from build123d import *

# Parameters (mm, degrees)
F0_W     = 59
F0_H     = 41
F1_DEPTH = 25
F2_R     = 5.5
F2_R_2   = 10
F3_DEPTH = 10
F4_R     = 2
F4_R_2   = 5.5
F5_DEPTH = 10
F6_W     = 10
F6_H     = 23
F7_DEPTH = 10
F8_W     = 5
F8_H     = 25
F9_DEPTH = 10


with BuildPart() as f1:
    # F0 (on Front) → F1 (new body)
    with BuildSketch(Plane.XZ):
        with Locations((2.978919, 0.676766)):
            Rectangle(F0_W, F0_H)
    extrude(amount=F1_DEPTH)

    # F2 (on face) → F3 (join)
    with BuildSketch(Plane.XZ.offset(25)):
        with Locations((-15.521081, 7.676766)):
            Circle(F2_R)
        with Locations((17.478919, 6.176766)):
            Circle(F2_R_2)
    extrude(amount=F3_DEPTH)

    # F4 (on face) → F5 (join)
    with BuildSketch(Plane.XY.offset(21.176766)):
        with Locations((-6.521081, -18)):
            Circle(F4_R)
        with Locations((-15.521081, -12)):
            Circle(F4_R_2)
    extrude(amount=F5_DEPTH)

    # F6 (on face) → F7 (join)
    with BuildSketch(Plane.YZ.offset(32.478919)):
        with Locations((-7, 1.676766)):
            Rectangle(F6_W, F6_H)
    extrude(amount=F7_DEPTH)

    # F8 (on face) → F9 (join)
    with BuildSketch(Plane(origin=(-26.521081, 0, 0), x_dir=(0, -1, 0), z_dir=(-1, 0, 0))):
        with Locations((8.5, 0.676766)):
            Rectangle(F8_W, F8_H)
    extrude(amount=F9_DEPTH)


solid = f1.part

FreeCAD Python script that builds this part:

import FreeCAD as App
import Part
import Sketcher

V = App.Vector
Q = App.Units.Quantity

doc = App.newDocument("Part")
body = doc.addObject("PartDesign::Body", "Body")

# Sketch on XZ plane
sketch1 = body.newObject("Sketcher::SketchObject", "Sketch")
sketch1.AttachmentSupport = (doc.getObject("XZ_Plane"), [""])
sketch1.MapMode = "FlatFace"
sketch1.addGeometry(Part.LineSegment(V(-27, 21, 0), V(-27, -20, 0)), False)
sketch1.addGeometry(Part.LineSegment(V(-27, -20, 0), V(32, -20, 0)), False)
sketch1.addGeometry(Part.LineSegment(V(32, -20, 0), V(32, 21, 0)), False)
sketch1.addGeometry(Part.LineSegment(V(32, 21, 0), V(-27, 21, 0)), False)
sketch1.addConstraint(Sketcher.Constraint("Coincident", 0, 2, 1, 1))
sketch1.addConstraint(Sketcher.Constraint("Coincident", 1, 2, 2, 1))
sketch1.addConstraint(Sketcher.Constraint("Coincident", 2, 2, 3, 1))
sketch1.addConstraint(Sketcher.Constraint("Coincident", 3, 2, 0, 1))
sketch1.addConstraint(Sketcher.Constraint("Vertical", 0))
sketch1.addConstraint(Sketcher.Constraint("Horizontal", 1))
sketch1.addConstraint(Sketcher.Constraint("Vertical", 2))
sketch1.addConstraint(Sketcher.Constraint("Horizontal", 3))
sketch1.addConstraint(Sketcher.Constraint("DistanceX", 1, 1, 1, 2, Q("59 mm")))
sketch1.addConstraint(Sketcher.Constraint("DistanceY", 0, 2, 0, 1, Q("41 mm")))
sketch1.addConstraint(Sketcher.Constraint("DistanceX", 0, 2, -1, 1, Q("26.521081 mm")))
sketch1.addConstraint(Sketcher.Constraint("DistanceY", 0, 2, -1, 1, Q("19.823234 mm")))
pad1 = body.newObject("PartDesign::Pad", "Pad")
pad1.Profile = sketch1
pad1.Length = 25

# Sketch on XZ plane
sketch2 = body.newObject("Sketcher::SketchObject", "Sketch001")
sketch2.AttachmentSupport = (doc.getObject("XZ_Plane"), [""])
sketch2.MapMode = "FlatFace"
sketch2.AttachmentOffset = App.Placement(V(0, 0, 25), App.Rotation())
sketch2.addGeometry(Part.Circle(V(-16, 8, 0), V(0, 0, 1), 6), False)
sketch2.addGeometry(Part.Circle(V(17, 6, 0), V(0, 0, 1), 10), False)
sketch2.addConstraint(Sketcher.Constraint("Diameter", 0, Q("11 mm")))
sketch2.addConstraint(Sketcher.Constraint("Diameter", 1, Q("20 mm")))
sketch2.addConstraint(Sketcher.Constraint("DistanceX", 0, 3, 1, 3, Q("33 mm")))
sketch2.addConstraint(Sketcher.Constraint("DistanceY", 1, 3, 0, 3, Q("1.5 mm")))
sketch2.addConstraint(Sketcher.Constraint("DistanceX", 0, 3, -1, 1, Q("15.521081 mm")))
sketch2.addConstraint(Sketcher.Constraint("DistanceY", -1, 1, 0, 3, Q("7.676766 mm")))
pad2 = body.newObject("PartDesign::Pad", "Pad001")
pad2.Profile = sketch2
pad2.Length = 10

# Sketch on XY plane
sketch3 = body.newObject("Sketcher::SketchObject", "Sketch002")
sketch3.AttachmentSupport = (doc.getObject("XY_Plane"), [""])
sketch3.MapMode = "FlatFace"
sketch3.AttachmentOffset = App.Placement(V(0, 0, 21.176766), App.Rotation())
sketch3.addGeometry(Part.Circle(V(-6.5, -18, 0), V(0, 0, 1), 2), False)
sketch3.addGeometry(Part.Circle(V(-15.5, -12, 0), V(0, 0, 1), 5.5), False)
sketch3.addConstraint(Sketcher.Constraint("Diameter", 0, Q("4 mm")))
sketch3.addConstraint(Sketcher.Constraint("Diameter", 1, Q("11 mm")))
sketch3.addConstraint(Sketcher.Constraint("DistanceY", 0, 3, -1, 1, Q("18 mm")))
sketch3.addConstraint(Sketcher.Constraint("DistanceY", 1, 3, -1, 1, Q("12 mm")))
sketch3.addConstraint(Sketcher.Constraint("DistanceX", 1, 3, 0, 3, Q("9 mm")))
sketch3.addConstraint(Sketcher.Constraint("DistanceX", 0, 3, -1, 1, Q("6.521081 mm")))
pad3 = body.newObject("PartDesign::Pad", "Pad002")
pad3.Profile = sketch3
pad3.Length = 10

# Sketch on YZ plane
sketch4 = body.newObject("Sketcher::SketchObject", "Sketch003")
sketch4.AttachmentSupport = (doc.getObject("YZ_Plane"), [""])
sketch4.MapMode = "FlatFace"
sketch4.AttachmentOffset = App.Placement(V(0, 0, 32.478919), App.Rotation())
sketch4.addGeometry(Part.LineSegment(V(-12, 13, 0), V(-12, -10, 0)), False)
sketch4.addGeometry(Part.LineSegment(V(-12, -10, 0), V(-2, -10, 0)), False)
sketch4.addGeometry(Part.LineSegment(V(-2, -10, 0), V(-2, 13, 0)), False)
sketch4.addGeometry(Part.LineSegment(V(-2, 13, 0), V(-12, 13, 0)), False)
sketch4.addConstraint(Sketcher.Constraint("Coincident", 0, 2, 1, 1))
sketch4.addConstraint(Sketcher.Constraint("Coincident", 1, 2, 2, 1))
sketch4.addConstraint(Sketcher.Constraint("Coincident", 2, 2, 3, 1))
sketch4.addConstraint(Sketcher.Constraint("Coincident", 3, 2, 0, 1))
sketch4.addConstraint(Sketcher.Constraint("Vertical", 0))
sketch4.addConstraint(Sketcher.Constraint("Horizontal", 1))
sketch4.addConstraint(Sketcher.Constraint("Vertical", 2))
sketch4.addConstraint(Sketcher.Constraint("Horizontal", 3))
sketch4.addConstraint(Sketcher.Constraint("DistanceX", 1, 1, 1, 2, Q("10 mm")))
sketch4.addConstraint(Sketcher.Constraint("DistanceY", 0, 2, 0, 1, Q("23 mm")))
sketch4.addConstraint(Sketcher.Constraint("DistanceX", 0, 2, -1, 1, Q("12 mm")))
sketch4.addConstraint(Sketcher.Constraint("DistanceY", 0, 2, -1, 1, Q("9.823234 mm")))
pad4 = body.newObject("PartDesign::Pad", "Pad003")
pad4.Profile = sketch4
pad4.Length = 10

# Sketch on YZ plane
sketch5 = body.newObject("Sketcher::SketchObject", "Sketch004")
sketch5.AttachmentSupport = (doc.getObject("YZ_Plane"), [""])
sketch5.MapMode = "FlatFace"
sketch5.AttachmentOffset = App.Placement(V(0, 0, -26.521081), App.Rotation())
sketch5.addGeometry(Part.LineSegment(V(-6, 13, 0), V(-6, -12, 0)), False)
sketch5.addGeometry(Part.LineSegment(V(-6, -12, 0), V(-11, -12, 0)), False)
sketch5.addGeometry(Part.LineSegment(V(-11, -12, 0), V(-11, 13, 0)), False)
sketch5.addGeometry(Part.LineSegment(V(-11, 13, 0), V(-6, 13, 0)), False)
sketch5.addConstraint(Sketcher.Constraint("Coincident", 0, 2, 1, 1))
sketch5.addConstraint(Sketcher.Constraint("Coincident", 1, 2, 2, 1))
sketch5.addConstraint(Sketcher.Constraint("Coincident", 2, 2, 3, 1))
sketch5.addConstraint(Sketcher.Constraint("Coincident", 3, 2, 0, 1))
sketch5.addConstraint(Sketcher.Constraint("Vertical", 0))
sketch5.addConstraint(Sketcher.Constraint("Horizontal", 1))
sketch5.addConstraint(Sketcher.Constraint("Vertical", 2))
sketch5.addConstraint(Sketcher.Constraint("Horizontal", 3))
sketch5.addConstraint(Sketcher.Constraint("DistanceX", 1, 2, 1, 1, Q("5 mm")))
sketch5.addConstraint(Sketcher.Constraint("DistanceY", 0, 2, 0, 1, Q("25 mm")))
sketch5.addConstraint(Sketcher.Constraint("DistanceX", 0, 2, -1, 1, Q("6 mm")))
sketch5.addConstraint(Sketcher.Constraint("DistanceY", 0, 2, -1, 1, Q("11.823234 mm")))
pad5 = body.newObject("PartDesign::Pad", "Pad004")
pad5.Profile = sketch5
pad5.Length = 10
pad5.Reversed = True

doc.recompute()
